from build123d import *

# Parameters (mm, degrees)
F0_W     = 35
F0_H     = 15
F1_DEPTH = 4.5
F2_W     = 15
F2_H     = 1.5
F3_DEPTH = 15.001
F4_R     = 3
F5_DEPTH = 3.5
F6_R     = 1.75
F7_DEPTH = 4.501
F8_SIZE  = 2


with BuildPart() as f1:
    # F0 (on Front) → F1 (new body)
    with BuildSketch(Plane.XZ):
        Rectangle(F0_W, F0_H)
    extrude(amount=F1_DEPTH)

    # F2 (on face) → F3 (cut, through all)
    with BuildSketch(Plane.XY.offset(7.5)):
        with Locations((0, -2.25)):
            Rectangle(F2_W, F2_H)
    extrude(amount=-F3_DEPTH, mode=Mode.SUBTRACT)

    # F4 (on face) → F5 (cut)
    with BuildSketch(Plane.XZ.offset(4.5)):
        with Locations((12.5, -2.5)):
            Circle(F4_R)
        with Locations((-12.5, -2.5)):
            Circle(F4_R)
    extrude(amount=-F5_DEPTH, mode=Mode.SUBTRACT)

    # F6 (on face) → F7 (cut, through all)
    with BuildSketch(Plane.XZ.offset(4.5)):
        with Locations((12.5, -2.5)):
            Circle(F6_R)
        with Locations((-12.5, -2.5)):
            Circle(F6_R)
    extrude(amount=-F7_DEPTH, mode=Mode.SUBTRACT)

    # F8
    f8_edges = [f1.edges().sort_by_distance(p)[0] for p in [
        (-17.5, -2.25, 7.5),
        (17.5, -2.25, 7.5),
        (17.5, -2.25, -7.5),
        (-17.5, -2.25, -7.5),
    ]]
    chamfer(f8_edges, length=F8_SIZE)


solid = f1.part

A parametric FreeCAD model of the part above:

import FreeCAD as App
import Part
import Sketcher
from FreeCAD import Vector


def edges_at(feature, points):
    """Names of the edges that pass closest to the given points."""
    edges = feature.Shape.Edges
    near = lambda p: min(range(len(edges)), key=lambda i: edges[i].distToShape(Part.Vertex(*p))[0])
    return sorted({f"Edge{near(p) + 1}" for p in points})


def add_polygon(sketch, points):
    """Adds a closed chain of lines whose ends are joined by coincident constraints."""
    first, n = sketch.GeometryCount, len(points)
    for a, b in zip(points, points[1:] + points[:1]):
        sketch.addGeometry(Part.LineSegment(App.Vector(*a, 0), App.Vector(*b, 0)), False)
    for i in range(n):
        sketch.addConstraint(Sketcher.Constraint("Coincident", first + i, 2, first + (i + 1) % n, 1))

doc = App.newDocument("Part")
body = doc.addObject("PartDesign::Body", "Body")

# Sketch on XZ plane
sketch1 = doc.addObject("Sketcher::SketchObject", "Sketch")
body.addObject(sketch1)
sketch1.AttachmentSupport = (doc.XZ_Plane, [""])
sketch1.MapMode = "FlatFace"
add_polygon(sketch1, [(-17.5, 7.5), (-17.5, -7.5), (17.5, -7.5), (17.5, 7.5)])  # lines 0-3
sketch1.addConstraint([
    Sketcher.Constraint("Vertical", 0),
    Sketcher.Constraint("Horizontal", 1),
    Sketcher.Constraint("Vertical", 2),
    Sketcher.Constraint("Horizontal", 3),
    Sketcher.Constraint("Symmetric", 0, 2, 2, 2, -1, 1),
    Sketcher.Constraint("DistanceX", 1, 1, 1, 2, 35.0),
    Sketcher.Constraint("DistanceY", 0, 2, 0, 1, 15.0),
])
pad1 = doc.addObject("PartDesign::Pad", "Pad")
body.addObject(pad1)
pad1.Profile = sketch1
pad1.Length = 4.5

# Sketch on XY plane
sketch2 = doc.addObject("Sketcher::SketchObject", "Sketch001")
body.addObject(sketch2)
sketch2.AttachmentSupport = (doc.XY_Plane, [""])
sketch2.MapMode = "FlatFace"
sketch2.AttachmentOffset = App.Placement(Vector(0, 0, 7.5), App.Rotation())
add_polygon(sketch2, [(-7.5, -1.5), (-7.5, -3), (7.5, -3), (7.5, -1.5)])  # lines 0-3
sketch2.addConstraint([
    Sketcher.Constraint("Vertical", 0),
    Sketcher.Constraint("Horizontal", 1),
    Sketcher.Constraint("Vertical", 2),
    Sketcher.Constraint("Horizontal", 3),
    Sketcher.Constraint("DistanceX", 1, 1, 1, 2, 15.0),
    Sketcher.Constraint("DistanceY", 0, 2, 0, 1, 1.5),
    Sketcher.Constraint("DistanceY", 0, 2, -1, 1, 3.0),
    Sketcher.Constraint("DistanceX", 0, 2, -1, 1, 7.5),
])
pocket1 = doc.addObject("PartDesign::Pocket", "Pocket")
body.addObject(pocket1)
pocket1.Profile = sketch2
pocket1.Type = "ThroughAll"

# Sketch on XZ plane
sketch3 = doc.addObject("Sketcher::SketchObject", "Sketch002")
body.addObject(sketch3)
sketch3.AttachmentSupport = (doc.XZ_Plane, [""])
sketch3.MapMode = "FlatFace"
sketch3.AttachmentOffset = App.Placement(Vector(0, 0, 4.5), App.Rotation())
sketch3.addGeometry([
    Part.Circle(Vector(12.5, -2.5, 0), Vector(0, 0, 1), 3),
    Part.Circle(Vector(-12.5, -2.5, 0), Vector(0, 0, 1), 3),
], False)
sketch3.addConstraint([
    Sketcher.Constraint("Equal", 0, 1),
    Sketcher.Constraint("Symmetric", 0, 3, 1, 3, -2),
    Sketcher.Constraint("Diameter", 0, 6.0),
    Sketcher.Constraint("DistanceX", 1, 3, 0, 3, 25.0),
    Sketcher.Constraint("DistanceY", 0, 3, -1, 1, 2.5),
])
pocket2 = doc.addObject("PartDesign::Pocket", "Pocket001")
body.addObject(pocket2)
pocket2.Profile = sketch3
pocket2.Length = 3.5

# Sketch on XZ plane
sketch4 = doc.addObject("Sketcher::SketchObject", "Sketch003")
body.addObject(sketch4)
sketch4.AttachmentSupport = (doc.XZ_Plane, [""])
sketch4.MapMode = "FlatFace"
sketch4.AttachmentOffset = App.Placement(Vector(0, 0, 4.5), App.Rotation())
sketch4.addGeometry([
    Part.Circle(Vector(12.5, -2.5, 0), Vector(0, 0, 1), 1.75),
    Part.Circle(Vector(-12.5, -2.5, 0), Vector(0, 0, 1), 1.75),
], False)
sketch4.addConstraint([
    Sketcher.Constraint("Equal", 0, 1),
    Sketcher.Constraint("Symmetric", 0, 3, 1, 3, -2),
    Sketcher.Constraint("Diameter", 0, 3.5),
    Sketcher.Constraint("DistanceX", 1, 3, 0, 3, 25.0),
    Sketcher.Constraint("DistanceY", 0, 3, -1, 1, 2.5),
])
pocket3 = doc.addObject("PartDesign::Pocket", "Pocket002")
body.addObject(pocket3)
pocket3.Profile = sketch4
pocket3.Type = "ThroughAll"
doc.recompute()

chamfer = doc.addObject("PartDesign::Chamfer", "Chamfer")
body.addObject(chamfer)
chamfer.Base = (pocket3, edges_at(pocket3, [
    (-17.5, -2.25, 7.5),
    (17.5, -2.25, 7.5),
    (17.5, -2.25, -7.5),
    (-17.5, -2.25, -7.5),
]))
chamfer.Size = 2

doc.recompute()
